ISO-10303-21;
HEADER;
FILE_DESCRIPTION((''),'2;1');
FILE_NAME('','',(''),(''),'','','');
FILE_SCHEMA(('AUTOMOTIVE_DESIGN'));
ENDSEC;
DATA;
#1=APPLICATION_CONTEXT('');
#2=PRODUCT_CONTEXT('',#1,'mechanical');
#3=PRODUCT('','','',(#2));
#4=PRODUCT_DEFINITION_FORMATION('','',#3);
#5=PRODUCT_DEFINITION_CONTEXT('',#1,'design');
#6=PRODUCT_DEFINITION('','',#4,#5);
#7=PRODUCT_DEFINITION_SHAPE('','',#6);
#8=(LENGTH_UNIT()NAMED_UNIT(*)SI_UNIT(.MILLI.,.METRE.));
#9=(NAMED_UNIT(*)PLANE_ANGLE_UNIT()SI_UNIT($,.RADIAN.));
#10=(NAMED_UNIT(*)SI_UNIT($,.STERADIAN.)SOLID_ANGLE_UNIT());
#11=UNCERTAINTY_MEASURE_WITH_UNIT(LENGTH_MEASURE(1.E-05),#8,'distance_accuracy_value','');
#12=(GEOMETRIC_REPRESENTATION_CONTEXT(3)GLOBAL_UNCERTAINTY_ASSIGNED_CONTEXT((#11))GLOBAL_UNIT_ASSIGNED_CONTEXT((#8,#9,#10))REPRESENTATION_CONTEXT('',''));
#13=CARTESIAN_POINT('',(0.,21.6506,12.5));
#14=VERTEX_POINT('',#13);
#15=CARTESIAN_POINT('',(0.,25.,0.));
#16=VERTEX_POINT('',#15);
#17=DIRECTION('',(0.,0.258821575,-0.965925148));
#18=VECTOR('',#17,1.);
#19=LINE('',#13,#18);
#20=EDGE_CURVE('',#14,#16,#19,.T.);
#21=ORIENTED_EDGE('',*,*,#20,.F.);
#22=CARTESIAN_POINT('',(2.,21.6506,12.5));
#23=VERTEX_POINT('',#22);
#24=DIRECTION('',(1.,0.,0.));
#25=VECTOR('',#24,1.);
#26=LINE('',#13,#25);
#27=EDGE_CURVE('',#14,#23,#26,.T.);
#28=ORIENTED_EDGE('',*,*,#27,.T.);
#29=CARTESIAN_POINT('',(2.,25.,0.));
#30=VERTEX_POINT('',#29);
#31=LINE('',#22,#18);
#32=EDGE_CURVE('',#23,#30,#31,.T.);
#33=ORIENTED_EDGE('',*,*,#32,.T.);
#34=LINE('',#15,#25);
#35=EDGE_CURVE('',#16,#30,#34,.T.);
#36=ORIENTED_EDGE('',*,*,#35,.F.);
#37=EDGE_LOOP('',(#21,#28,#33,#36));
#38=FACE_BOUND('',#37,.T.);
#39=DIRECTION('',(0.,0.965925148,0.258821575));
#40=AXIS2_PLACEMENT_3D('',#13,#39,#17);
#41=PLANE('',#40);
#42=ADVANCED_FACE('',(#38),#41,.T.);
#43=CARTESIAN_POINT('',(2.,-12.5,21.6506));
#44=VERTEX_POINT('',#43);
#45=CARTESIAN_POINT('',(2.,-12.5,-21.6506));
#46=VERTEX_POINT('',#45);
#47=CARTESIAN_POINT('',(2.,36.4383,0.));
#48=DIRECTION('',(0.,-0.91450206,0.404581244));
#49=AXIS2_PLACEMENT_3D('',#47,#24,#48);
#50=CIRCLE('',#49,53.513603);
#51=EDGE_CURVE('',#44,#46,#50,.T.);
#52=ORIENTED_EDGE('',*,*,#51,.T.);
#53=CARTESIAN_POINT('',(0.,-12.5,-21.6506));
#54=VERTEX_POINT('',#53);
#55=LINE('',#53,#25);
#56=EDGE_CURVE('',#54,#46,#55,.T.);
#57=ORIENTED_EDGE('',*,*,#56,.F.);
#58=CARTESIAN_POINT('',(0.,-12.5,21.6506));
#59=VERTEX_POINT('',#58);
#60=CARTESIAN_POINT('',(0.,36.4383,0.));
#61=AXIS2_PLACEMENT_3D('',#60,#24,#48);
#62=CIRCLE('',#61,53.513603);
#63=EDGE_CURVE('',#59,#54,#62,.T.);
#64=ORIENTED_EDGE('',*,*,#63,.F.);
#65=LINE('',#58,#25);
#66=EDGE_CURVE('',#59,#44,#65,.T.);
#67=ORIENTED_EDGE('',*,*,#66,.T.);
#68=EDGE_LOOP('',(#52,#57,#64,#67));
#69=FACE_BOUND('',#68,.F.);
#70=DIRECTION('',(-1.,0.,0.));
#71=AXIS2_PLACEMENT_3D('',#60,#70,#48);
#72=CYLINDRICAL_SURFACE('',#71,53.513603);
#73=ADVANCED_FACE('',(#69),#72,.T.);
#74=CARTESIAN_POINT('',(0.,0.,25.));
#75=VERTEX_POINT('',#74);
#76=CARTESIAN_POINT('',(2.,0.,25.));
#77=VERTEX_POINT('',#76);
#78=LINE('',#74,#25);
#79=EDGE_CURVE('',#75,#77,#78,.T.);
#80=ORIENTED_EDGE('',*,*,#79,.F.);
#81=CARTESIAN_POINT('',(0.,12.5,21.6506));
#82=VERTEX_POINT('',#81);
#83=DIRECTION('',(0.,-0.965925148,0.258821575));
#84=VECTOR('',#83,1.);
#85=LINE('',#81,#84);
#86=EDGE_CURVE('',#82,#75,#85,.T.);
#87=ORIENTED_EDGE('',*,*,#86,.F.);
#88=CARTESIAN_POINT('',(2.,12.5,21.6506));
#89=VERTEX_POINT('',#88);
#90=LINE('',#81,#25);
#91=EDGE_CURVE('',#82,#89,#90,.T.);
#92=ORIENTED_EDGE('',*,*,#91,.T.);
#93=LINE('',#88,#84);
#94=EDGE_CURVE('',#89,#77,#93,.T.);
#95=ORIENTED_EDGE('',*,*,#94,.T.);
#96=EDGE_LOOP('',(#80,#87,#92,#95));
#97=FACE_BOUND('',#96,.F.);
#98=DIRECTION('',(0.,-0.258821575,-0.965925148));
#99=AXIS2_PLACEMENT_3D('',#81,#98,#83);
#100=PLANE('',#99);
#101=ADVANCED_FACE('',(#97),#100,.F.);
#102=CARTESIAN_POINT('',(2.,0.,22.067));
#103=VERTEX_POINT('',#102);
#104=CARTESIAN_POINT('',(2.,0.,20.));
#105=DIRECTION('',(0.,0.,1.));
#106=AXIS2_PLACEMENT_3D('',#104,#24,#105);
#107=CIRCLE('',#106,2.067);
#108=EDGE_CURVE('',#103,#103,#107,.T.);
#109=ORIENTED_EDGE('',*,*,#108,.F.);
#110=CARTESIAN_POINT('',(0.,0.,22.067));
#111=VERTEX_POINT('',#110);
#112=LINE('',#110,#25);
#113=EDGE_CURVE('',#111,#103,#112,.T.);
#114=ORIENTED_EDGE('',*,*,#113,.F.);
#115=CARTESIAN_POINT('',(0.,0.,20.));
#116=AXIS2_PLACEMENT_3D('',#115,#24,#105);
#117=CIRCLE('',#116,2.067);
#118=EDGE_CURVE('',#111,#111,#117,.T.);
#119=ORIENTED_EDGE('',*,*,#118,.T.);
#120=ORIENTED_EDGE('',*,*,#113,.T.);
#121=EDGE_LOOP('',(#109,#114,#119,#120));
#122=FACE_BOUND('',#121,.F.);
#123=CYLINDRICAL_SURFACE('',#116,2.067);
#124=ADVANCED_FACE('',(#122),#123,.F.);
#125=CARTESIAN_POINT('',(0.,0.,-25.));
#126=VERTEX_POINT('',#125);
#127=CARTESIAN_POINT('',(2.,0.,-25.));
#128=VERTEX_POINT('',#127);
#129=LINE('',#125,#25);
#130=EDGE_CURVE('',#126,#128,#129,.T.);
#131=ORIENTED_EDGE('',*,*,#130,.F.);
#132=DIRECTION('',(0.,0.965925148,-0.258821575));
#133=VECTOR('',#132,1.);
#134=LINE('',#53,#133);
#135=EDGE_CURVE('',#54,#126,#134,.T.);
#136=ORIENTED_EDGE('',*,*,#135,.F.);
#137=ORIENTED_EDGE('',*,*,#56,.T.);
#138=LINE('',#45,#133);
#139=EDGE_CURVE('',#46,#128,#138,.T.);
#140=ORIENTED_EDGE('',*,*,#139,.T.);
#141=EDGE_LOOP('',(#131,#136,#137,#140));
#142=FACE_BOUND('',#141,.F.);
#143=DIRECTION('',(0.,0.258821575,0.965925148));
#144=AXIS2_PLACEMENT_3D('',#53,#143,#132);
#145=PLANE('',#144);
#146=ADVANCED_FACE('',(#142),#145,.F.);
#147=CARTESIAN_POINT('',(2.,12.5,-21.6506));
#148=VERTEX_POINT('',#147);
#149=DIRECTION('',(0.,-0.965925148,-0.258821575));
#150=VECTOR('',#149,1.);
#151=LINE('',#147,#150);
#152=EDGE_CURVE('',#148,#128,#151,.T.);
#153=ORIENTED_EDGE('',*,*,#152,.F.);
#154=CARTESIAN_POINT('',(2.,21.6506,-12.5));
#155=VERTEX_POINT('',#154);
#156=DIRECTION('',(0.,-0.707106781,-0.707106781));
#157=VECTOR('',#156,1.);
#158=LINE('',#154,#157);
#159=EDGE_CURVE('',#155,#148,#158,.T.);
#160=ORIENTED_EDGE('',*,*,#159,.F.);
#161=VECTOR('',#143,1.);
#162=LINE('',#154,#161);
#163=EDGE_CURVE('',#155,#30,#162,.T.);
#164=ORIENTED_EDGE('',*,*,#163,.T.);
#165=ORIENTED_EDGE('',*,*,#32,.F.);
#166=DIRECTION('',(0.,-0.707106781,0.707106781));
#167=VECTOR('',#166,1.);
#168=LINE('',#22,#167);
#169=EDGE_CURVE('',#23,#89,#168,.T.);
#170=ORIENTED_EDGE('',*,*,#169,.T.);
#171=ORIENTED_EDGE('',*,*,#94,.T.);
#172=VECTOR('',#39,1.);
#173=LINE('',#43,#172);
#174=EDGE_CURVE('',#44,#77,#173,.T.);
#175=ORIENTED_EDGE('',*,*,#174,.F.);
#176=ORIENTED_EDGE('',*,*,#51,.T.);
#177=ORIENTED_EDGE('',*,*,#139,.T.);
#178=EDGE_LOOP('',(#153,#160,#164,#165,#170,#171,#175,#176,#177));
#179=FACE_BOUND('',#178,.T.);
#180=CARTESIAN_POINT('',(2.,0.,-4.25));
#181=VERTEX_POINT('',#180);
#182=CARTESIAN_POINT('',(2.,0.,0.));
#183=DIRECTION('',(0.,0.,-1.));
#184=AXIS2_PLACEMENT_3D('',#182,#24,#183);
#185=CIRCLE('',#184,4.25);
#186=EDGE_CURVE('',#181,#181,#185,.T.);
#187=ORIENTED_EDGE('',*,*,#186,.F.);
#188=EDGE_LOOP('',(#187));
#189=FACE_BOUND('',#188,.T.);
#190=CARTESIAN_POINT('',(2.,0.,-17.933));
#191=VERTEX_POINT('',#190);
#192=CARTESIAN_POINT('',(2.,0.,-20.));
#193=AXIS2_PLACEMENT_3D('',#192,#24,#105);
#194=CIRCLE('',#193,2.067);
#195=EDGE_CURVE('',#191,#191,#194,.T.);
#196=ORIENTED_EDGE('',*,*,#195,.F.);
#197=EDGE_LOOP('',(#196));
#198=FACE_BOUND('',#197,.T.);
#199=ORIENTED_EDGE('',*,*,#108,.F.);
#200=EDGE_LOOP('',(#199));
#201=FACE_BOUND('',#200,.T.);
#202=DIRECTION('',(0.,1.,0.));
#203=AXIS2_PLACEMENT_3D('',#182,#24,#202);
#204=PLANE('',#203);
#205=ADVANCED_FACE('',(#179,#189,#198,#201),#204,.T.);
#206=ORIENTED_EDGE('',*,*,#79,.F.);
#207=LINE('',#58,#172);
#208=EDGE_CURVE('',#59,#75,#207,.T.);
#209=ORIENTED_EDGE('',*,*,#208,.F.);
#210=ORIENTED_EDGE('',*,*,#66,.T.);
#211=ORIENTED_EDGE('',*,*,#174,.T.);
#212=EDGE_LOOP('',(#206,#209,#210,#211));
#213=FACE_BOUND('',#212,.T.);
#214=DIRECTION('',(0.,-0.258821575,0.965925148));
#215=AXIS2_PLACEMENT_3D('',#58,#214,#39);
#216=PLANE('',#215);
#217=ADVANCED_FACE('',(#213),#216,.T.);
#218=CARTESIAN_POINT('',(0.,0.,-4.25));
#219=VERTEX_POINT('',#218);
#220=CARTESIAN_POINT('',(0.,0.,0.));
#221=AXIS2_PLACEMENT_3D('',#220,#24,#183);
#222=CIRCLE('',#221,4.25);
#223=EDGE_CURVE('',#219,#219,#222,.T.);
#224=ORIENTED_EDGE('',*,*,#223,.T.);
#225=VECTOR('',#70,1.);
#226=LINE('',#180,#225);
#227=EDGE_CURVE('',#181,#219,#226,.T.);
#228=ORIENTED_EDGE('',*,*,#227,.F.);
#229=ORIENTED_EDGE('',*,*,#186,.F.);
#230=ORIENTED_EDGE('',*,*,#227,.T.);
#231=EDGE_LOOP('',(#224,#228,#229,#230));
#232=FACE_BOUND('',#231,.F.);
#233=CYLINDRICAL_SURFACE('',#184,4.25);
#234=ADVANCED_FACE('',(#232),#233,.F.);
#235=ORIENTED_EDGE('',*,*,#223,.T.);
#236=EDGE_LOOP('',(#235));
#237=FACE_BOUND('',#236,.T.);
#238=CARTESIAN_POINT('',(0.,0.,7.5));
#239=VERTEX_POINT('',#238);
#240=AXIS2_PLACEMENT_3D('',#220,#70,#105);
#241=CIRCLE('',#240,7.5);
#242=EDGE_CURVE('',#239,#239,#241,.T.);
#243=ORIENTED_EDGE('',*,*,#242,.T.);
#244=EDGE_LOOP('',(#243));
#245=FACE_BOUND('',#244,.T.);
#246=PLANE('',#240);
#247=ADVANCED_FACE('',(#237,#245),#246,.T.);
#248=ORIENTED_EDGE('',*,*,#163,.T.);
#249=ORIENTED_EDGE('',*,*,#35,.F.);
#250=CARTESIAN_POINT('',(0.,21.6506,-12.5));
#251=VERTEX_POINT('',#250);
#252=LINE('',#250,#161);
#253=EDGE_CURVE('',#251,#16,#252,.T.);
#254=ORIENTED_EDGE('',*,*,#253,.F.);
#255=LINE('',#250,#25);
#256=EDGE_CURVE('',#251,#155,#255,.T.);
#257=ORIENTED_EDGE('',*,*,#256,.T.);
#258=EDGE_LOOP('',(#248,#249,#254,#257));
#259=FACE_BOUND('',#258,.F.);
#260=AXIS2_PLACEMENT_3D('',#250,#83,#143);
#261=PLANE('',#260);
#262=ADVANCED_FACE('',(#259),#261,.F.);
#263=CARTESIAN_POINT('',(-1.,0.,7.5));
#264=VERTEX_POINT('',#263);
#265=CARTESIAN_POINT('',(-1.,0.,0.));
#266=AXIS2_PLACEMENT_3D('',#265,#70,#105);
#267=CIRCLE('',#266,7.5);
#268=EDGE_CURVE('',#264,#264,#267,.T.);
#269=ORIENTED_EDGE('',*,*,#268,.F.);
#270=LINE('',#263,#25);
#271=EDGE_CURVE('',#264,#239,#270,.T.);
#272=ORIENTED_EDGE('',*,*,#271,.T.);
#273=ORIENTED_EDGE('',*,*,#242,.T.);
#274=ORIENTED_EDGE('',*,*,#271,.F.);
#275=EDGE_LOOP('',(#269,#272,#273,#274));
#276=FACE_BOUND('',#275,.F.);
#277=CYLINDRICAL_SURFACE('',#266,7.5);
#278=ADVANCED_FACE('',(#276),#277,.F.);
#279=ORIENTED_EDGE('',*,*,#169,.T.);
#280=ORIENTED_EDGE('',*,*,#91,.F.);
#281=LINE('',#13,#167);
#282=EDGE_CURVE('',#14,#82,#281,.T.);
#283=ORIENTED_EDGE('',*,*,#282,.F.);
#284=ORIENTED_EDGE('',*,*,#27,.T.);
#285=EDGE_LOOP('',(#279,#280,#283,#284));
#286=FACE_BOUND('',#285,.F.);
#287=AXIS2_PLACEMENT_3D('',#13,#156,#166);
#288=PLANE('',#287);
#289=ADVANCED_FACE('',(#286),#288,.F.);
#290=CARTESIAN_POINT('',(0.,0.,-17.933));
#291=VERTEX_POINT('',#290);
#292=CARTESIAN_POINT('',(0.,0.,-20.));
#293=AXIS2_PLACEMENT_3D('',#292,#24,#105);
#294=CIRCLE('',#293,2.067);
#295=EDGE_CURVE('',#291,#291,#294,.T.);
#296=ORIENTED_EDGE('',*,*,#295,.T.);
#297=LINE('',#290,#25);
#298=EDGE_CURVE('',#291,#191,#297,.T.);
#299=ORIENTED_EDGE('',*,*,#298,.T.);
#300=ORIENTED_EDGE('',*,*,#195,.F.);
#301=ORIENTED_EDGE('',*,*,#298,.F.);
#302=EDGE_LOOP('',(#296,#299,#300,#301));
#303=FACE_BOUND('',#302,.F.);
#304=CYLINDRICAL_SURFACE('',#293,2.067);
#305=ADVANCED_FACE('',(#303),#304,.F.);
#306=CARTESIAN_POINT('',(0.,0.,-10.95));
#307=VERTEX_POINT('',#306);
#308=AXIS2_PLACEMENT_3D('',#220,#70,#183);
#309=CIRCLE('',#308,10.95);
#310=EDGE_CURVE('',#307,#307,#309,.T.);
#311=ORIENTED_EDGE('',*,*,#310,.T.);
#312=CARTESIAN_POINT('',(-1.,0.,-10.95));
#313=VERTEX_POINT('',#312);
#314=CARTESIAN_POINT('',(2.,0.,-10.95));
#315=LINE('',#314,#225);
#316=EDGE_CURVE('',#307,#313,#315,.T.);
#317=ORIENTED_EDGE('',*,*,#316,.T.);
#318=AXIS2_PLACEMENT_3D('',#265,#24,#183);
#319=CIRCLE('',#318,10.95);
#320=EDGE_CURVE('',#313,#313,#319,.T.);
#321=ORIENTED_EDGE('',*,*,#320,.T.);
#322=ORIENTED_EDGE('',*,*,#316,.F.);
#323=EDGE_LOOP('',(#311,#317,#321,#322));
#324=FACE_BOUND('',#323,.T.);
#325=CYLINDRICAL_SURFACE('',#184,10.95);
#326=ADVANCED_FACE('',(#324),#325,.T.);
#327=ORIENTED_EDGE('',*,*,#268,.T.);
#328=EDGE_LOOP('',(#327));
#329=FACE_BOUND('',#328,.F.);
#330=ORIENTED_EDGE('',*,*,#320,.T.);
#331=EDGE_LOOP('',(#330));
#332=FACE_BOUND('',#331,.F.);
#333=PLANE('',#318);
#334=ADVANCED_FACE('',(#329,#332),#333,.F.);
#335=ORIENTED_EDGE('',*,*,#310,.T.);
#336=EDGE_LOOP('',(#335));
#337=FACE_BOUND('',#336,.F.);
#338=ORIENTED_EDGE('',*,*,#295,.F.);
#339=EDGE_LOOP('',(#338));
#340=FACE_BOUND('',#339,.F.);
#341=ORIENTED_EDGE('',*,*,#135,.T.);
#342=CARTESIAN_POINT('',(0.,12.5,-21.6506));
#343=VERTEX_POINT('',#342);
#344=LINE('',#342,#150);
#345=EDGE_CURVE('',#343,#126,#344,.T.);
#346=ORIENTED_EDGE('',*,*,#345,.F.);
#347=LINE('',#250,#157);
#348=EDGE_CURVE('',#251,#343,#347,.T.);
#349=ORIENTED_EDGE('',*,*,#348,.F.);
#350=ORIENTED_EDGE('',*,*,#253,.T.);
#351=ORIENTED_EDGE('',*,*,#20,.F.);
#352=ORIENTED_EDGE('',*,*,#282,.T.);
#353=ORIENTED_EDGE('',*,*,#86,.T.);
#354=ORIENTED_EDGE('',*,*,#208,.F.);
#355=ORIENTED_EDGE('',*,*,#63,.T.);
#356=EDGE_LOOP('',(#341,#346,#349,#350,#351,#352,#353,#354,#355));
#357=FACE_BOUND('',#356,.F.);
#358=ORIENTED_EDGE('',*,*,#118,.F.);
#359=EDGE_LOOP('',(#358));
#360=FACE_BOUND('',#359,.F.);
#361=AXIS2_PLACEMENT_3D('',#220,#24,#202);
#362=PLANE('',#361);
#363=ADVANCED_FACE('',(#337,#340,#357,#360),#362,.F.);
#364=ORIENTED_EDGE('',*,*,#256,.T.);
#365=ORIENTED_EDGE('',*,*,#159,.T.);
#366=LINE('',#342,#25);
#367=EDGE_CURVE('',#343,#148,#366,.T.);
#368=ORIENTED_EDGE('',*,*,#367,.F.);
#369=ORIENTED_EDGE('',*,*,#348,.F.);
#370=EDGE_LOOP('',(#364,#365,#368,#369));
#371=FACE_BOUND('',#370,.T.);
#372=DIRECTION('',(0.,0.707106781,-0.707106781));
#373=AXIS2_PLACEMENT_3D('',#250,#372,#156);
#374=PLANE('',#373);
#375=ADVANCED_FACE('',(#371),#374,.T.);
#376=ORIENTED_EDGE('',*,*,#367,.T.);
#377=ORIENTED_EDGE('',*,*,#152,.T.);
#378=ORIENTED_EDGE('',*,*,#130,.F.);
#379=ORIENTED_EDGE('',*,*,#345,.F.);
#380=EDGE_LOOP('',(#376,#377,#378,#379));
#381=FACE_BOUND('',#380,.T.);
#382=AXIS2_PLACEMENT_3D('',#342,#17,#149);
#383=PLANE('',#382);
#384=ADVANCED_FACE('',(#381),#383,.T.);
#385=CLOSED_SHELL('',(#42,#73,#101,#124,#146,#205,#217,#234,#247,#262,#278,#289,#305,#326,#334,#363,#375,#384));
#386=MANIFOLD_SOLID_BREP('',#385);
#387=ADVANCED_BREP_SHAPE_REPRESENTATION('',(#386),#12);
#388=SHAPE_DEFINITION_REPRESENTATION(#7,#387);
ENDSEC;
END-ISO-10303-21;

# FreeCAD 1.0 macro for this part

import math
import FreeCAD as App
import Part
import Sketcher
from FreeCAD import Vector
Q = App.Units.Quantity

doc = App.newDocument("Part")
body = doc.addObject("PartDesign::Body", "Body")

sketch1 = body.newObject("Sketcher::SketchObject", "Sketch")
sketch1.AttachmentSupport = (doc.getObject("YZ_Plane"), [""])
sketch1.MapMode = "FlatFace"
sketch1.addGeometry([
    Part.LineSegment(Vector(21.6506, -12.5, 0), Vector(25, 0, 0)),
    Part.LineSegment(Vector(25, 0, 0), Vector(21.6506, 12.5, 0)),
    Part.LineSegment(Vector(21.6506, 12.5, 0), Vector(12.5, 21.6506, 0)),
    Part.LineSegment(Vector(12.5, 21.6506, 0), Vector(0, 25, 0)),
    Part.LineSegment(Vector(0, 25, 0), Vector(-12.5, 21.6506, 0)),
    Part.ArcOfCircle(Part.Circle(Vector(36.4383, 0, 0), Vector(0, 0, 1), 53.513603), math.radians(156.135112), math.radians(203.864888)),
    Part.LineSegment(Vector(-12.5, -21.6506, 0), Vector(0, -25, 0)),
    Part.LineSegment(Vector(0, -25, 0), Vector(12.5, -21.6506, 0)),
    Part.LineSegment(Vector(12.5, -21.6506, 0), Vector(21.6506, -12.5, 0)),
    Part.Circle(Vector(0, 0, 0), Vector(0, 0, 1), 10.95),
], False)
sketch1.addConstraint([
    Sketcher.Constraint("Coincident", 0, 2, 1, 1),
    Sketcher.Constraint("Coincident", 1, 2, 2, 1),
    Sketcher.Constraint("Coincident", 2, 2, 3, 1),
    Sketcher.Constraint("Coincident", 3, 2, 4, 1),
    Sketcher.Constraint("Coincident", 4, 2, 5, 1),
    Sketcher.Constraint("Coincident", 5, 2, 6, 1),
    Sketcher.Constraint("Coincident", 6, 2, 7, 1),
    Sketcher.Constraint("Coincident", 7, 2, 8, 1),
    Sketcher.Constraint("Coincident", 8, 2, 0, 1),
    Sketcher.Constraint("Coincident", 9, 3, -1, 1),
    Sketcher.Constraint("Symmetric", 2, 2, 5, 2, -1, 1),
    Sketcher.Constraint("Symmetric", 3, 2, 6, 2, -1, 1),
    Sketcher.Constraint("Symmetric", 4, 2, 7, 2, -1, 1),
    Sketcher.Constraint("Symmetric", 2, 2, 4, 2, -2),
    Sketcher.Constraint("Symmetric", 1, 2, 8, 2, -1),
    Sketcher.Constraint("PointOnObject", 0, 2, -1),
    Sketcher.Constraint("PointOnObject", 3, 2, -2),
    Sketcher.Constraint("Perpendicular", 0, 3),
    Sketcher.Constraint("Perpendicular", 2, 8),
    Sketcher.Constraint("Equal", 1, 2),
    Sketcher.Constraint("Equal", 2, 3),
    Sketcher.Constraint("Diameter", 9, 21.9),
    Sketcher.Constraint("Angle", 0, Q("74.9998 deg")),
    Sketcher.Constraint("DistanceX", -1, 1, 0, 2, 25.0),
    Sketcher.Constraint("Radius", 5, 53.5136),
])
pad1 = body.newObject("PartDesign::Pad", "Pad")
pad1.Profile = sketch1
pad1.Length = 2

sketch2 = body.newObject("Sketcher::SketchObject", "Sketch001")
sketch2.AttachmentSupport = (doc.getObject("YZ_Plane"), [""])
sketch2.MapMode = "FlatFace"
sketch2.AttachmentOffset = App.Placement(Vector(0, 0, 2), App.Rotation())
sketch2.addGeometry([
    Part.Circle(Vector(0, 0, 0), Vector(0, 0, 1), 10.95),
    Part.Circle(Vector(0, 0, 0), Vector(0, 0, 1), 4.25),
], False)
sketch2.addConstraint([
    Sketcher.Constraint("Coincident", 0, 3, -1, 1),
    Sketcher.Constraint("Coincident", 1, 3, -1, 1),
    Sketcher.Constraint("Diameter", 0, 21.9),
    Sketcher.Constraint("Diameter", 1, 8.5),
])
pad2 = body.newObject("PartDesign::Pad", "Pad001")
pad2.Profile = sketch2
pad2.Length = 3
pad2.Reversed = True

sketch3 = body.newObject("Sketcher::SketchObject", "Sketch002")
sketch3.AttachmentSupport = (doc.getObject("YZ_Plane"), [""])
sketch3.MapMode = "FlatFace"
sketch3.addGeometry([
    Part.Circle(Vector(0, -20, 0), Vector(0, 0, 1), 2.067),
    Part.Circle(Vector(0, 20, 0), Vector(0, 0, 1), 2.067),
], False)
sketch3.addConstraint([
    Sketcher.Constraint("Equal", 0, 1),
    Sketcher.Constraint("Symmetric", 0, 3, 1, 3, -1, 1),
    Sketcher.Constraint("PointOnObject", 0, 3, -2),
    Sketcher.Constraint("Diameter", 0, 4.134),
    Sketcher.Constraint("DistanceY", 0, 3, -1, 1, 20.0),
])
doc.recompute()
hole = body.newObject("PartDesign::Hole", "Hole")
hole.Profile = sketch3
hole.ThreadType = "None"
hole.Diameter = 4.134
hole.DepthType = "ThroughAll"
hole.Reversed = True

sketch4 = body.newObject("Sketcher::SketchObject", "Sketch003")
sketch4.AttachmentSupport = (doc.getObject("YZ_Plane"), [""])
sketch4.MapMode = "FlatFace"
sketch4.AttachmentOffset = App.Placement(Vector(0, 0, -1), App.Rotation())
sketch4.addGeometry([
    Part.Circle(Vector(0, 0, 0), Vector(0, 0, 1), 7.5),
    Part.Circle(Vector(0, 0, 0), Vector(0, 0, 1), 4.25),
], False)
sketch4.addConstraint([
    Sketcher.Constraint("Coincident", 0, 3, -1, 1),
    Sketcher.Constraint("Coincident", 1, 3, -1, 1),
    Sketcher.Constraint("Diameter", 0, 15.0),
    Sketcher.Constraint("Diameter", 1, 8.5),
])
pocket1 = body.newObject("PartDesign::Pocket", "Pocket")
pocket1.Profile = sketch4
pocket1.Length = 1
pocket1.Reversed = True

doc.recompute()
